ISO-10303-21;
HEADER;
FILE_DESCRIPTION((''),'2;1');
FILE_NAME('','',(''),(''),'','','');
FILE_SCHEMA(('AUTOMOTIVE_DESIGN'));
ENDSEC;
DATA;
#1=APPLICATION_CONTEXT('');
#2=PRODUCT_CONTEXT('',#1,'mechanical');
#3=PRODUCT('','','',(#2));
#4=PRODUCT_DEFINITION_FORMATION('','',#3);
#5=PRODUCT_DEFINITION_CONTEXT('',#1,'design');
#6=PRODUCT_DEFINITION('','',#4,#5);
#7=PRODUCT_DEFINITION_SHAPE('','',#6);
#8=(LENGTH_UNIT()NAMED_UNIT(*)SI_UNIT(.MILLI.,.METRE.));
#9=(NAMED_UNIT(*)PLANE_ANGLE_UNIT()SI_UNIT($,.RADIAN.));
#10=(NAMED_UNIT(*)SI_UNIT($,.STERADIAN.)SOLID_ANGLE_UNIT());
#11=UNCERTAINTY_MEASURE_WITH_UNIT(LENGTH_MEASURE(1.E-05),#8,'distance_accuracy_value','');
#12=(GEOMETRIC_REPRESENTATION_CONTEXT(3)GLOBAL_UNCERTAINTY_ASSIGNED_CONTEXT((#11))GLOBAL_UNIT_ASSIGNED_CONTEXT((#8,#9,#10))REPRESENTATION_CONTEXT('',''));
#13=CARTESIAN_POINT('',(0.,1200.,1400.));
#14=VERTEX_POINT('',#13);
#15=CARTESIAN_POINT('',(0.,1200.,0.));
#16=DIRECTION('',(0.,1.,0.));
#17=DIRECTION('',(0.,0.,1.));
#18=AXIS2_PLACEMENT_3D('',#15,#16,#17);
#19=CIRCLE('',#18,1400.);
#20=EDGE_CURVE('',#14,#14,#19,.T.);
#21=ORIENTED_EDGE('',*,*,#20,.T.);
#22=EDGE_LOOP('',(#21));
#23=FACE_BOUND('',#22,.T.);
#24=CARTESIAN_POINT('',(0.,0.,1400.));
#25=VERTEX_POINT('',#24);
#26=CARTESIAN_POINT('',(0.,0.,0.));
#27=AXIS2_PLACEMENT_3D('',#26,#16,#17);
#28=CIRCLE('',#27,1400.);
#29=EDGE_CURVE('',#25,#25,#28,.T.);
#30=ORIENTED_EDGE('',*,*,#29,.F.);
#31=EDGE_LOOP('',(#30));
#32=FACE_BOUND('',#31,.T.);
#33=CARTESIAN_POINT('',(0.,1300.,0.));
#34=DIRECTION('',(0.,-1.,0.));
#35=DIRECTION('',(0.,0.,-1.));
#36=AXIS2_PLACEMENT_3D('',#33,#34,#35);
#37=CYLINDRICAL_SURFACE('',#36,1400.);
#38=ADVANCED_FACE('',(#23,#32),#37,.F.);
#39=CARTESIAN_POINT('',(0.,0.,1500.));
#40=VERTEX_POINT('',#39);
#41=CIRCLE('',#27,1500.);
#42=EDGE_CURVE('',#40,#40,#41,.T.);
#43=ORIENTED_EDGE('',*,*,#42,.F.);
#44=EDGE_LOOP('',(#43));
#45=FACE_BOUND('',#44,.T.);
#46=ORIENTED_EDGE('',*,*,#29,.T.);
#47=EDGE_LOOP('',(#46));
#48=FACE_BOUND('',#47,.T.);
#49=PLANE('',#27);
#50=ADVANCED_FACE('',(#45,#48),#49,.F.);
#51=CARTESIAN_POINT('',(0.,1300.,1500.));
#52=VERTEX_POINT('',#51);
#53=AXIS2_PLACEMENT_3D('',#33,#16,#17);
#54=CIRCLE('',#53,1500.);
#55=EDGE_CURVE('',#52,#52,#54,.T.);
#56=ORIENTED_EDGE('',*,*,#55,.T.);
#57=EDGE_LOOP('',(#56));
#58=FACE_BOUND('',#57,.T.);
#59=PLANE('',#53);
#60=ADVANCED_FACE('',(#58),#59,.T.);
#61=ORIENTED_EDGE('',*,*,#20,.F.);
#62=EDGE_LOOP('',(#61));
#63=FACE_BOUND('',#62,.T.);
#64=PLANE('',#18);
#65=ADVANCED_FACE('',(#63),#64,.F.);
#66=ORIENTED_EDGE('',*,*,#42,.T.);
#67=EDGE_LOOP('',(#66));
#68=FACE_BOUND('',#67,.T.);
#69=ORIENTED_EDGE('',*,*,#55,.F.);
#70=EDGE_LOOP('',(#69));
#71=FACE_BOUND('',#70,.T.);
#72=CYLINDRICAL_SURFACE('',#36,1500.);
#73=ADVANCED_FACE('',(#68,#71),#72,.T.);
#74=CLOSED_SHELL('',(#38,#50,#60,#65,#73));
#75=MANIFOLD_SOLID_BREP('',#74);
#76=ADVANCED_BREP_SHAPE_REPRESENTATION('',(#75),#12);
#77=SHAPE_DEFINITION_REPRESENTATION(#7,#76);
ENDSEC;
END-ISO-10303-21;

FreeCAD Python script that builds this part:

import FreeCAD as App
import Part
import Sketcher
from FreeCAD import Vector
Q = App.Units.Quantity


def faces_at(feature, points):
    """Names of the faces that lie closest to the given points."""
    faces = feature.Shape.Faces
    near = lambda p: min(range(len(faces)), key=lambda i: faces[i].distToShape(Part.Vertex(*p))[0])
    return sorted({f"Face{near(p) + 1}" for p in points})

doc = App.newDocument("Part")
body = doc.addObject("PartDesign::Body", "Body")

# Sketch on XZ plane
sketch1 = body.newObject("Sketcher::SketchObject", "Sketch")
sketch1.AttachmentSupport = (doc.getObject("XZ_Plane"), [""])
sketch1.MapMode = "FlatFace"
sketch1.addGeometry(Part.Circle(Vector(0, 0, 0), Vector(0, 0, 1), 1500), False)
sketch1.addConstraint([
    Sketcher.Constraint("Coincident", 0, 3, -1, 1),
    Sketcher.Constraint("Diameter", 0, Q("3000 mm")),
])
pad1 = body.newObject("PartDesign::Pad", "Pad")
pad1.Profile = sketch1
pad1.Length = 1300
pad1.Reversed = True
doc.recompute()

thickness = body.newObject("PartDesign::Thickness", "Thickness")
thickness.Base = (pad1, faces_at(pad1, [(0, 0, 0)]))
thickness.Value = 100
thickness.Reversed = True
thickness.Join = "Intersection"

doc.recompute()
